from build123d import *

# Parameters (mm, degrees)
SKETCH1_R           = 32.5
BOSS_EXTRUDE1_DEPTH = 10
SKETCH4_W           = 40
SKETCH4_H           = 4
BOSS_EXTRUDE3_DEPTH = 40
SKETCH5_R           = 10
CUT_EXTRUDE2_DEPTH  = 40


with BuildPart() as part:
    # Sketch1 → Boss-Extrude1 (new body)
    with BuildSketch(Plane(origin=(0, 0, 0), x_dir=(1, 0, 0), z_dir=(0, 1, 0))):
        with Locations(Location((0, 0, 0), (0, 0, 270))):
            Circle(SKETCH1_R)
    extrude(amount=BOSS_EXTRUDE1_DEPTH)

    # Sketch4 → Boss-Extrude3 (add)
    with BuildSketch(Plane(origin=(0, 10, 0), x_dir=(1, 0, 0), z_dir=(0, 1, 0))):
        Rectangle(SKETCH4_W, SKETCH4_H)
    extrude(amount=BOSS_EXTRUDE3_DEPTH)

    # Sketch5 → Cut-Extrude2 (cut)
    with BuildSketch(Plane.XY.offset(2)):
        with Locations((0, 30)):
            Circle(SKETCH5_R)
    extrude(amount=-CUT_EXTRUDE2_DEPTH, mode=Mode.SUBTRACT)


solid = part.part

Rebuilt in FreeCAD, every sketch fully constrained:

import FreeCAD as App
import Part
import Sketcher
from FreeCAD import Vector

doc = App.newDocument("Part")
body = doc.addObject("PartDesign::Body", "Body")

# Sketch on XZ plane
sketch1 = body.newObject("Sketcher::SketchObject", "Sketch")
sketch1.AttachmentSupport = (doc.getObject("XZ_Plane"), [""])
sketch1.MapMode = "FlatFace"
sketch1.addGeometry(Part.Circle(Vector(0, 0, 0), Vector(0, 0, 1), 32), False)
sketch1.addConstraint(Sketcher.Constraint("Coincident", 0, 3, -1, 1))
sketch1.addConstraint(Sketcher.Constraint("Diameter", 0, 65.0))
pad1 = body.newObject("PartDesign::Pad", "Pad")
pad1.Profile = sketch1
pad1.Length = 10
pad1.Reversed = True

# Sketch on XZ plane
sketch2 = body.newObject("Sketcher::SketchObject", "Sketch001")
sketch2.AttachmentSupport = (doc.getObject("XZ_Plane"), [""])
sketch2.MapMode = "FlatFace"
sketch2.AttachmentOffset = App.Placement(Vector(0, 0, -10), App.Rotation())
sketch2.addGeometry(Part.LineSegment(Vector(-20, -2, 0), Vector(-20, 2, 0)), False)
sketch2.addGeometry(Part.LineSegment(Vector(-20, 2, 0), Vector(20, 2, 0)), False)
sketch2.addGeometry(Part.LineSegment(Vector(20, 2, 0), Vector(20, -2, 0)), False)
sketch2.addGeometry(Part.LineSegment(Vector(20, -2, 0), Vector(-20, -2, 0)), False)
sketch2.addConstraint(Sketcher.Constraint("Coincident", 0, 2, 1, 1))
sketch2.addConstraint(Sketcher.Constraint("Coincident", 1, 2, 2, 1))
sketch2.addConstraint(Sketcher.Constraint("Coincident", 2, 2, 3, 1))
sketch2.addConstraint(Sketcher.Constraint("Coincident", 3, 2, 0, 1))
sketch2.addConstraint(Sketcher.Constraint("Vertical", 0))
sketch2.addConstraint(Sketcher.Constraint("Horizontal", 1))
sketch2.addConstraint(Sketcher.Constraint("Vertical", 2))
sketch2.addConstraint(Sketcher.Constraint("Horizontal", 3))
sketch2.addConstraint(Sketcher.Constraint("Symmetric", 0, 2, 2, 2, -1, 1))
sketch2.addConstraint(Sketcher.Constraint("DistanceX", 1, 1, 1, 2, 40.0))
sketch2.addConstraint(Sketcher.Constraint("DistanceY", 0, 1, 0, 2, 4.0))
pad2 = body.newObject("PartDesign::Pad", "Pad001")
pad2.Profile = sketch2
pad2.Length = 40
pad2.Reversed = True

# Sketch on XY plane
sketch3 = body.newObject("Sketcher::SketchObject", "Sketch002")
sketch3.AttachmentSupport = (doc.getObject("XY_Plane"), [""])
sketch3.MapMode = "FlatFace"
sketch3.AttachmentOffset = App.Placement(Vector(0, 0, 2), App.Rotation())
sketch3.addGeometry(Part.Circle(Vector(0, 30, 0), Vector(0, 0, 1), 10), False)
sketch3.addConstraint(Sketcher.Constraint("PointOnObject", 0, 3, -2))
sketch3.addConstraint(Sketcher.Constraint("Diameter", 0, 20.0))
sketch3.addConstraint(Sketcher.Constraint("DistanceY", -1, 1, 0, 3, 30.0))
pocket1 = body.newObject("PartDesign::Pocket", "Pocket")
pocket1.Profile = sketch3
pocket1.Length = 40

doc.recompute()
